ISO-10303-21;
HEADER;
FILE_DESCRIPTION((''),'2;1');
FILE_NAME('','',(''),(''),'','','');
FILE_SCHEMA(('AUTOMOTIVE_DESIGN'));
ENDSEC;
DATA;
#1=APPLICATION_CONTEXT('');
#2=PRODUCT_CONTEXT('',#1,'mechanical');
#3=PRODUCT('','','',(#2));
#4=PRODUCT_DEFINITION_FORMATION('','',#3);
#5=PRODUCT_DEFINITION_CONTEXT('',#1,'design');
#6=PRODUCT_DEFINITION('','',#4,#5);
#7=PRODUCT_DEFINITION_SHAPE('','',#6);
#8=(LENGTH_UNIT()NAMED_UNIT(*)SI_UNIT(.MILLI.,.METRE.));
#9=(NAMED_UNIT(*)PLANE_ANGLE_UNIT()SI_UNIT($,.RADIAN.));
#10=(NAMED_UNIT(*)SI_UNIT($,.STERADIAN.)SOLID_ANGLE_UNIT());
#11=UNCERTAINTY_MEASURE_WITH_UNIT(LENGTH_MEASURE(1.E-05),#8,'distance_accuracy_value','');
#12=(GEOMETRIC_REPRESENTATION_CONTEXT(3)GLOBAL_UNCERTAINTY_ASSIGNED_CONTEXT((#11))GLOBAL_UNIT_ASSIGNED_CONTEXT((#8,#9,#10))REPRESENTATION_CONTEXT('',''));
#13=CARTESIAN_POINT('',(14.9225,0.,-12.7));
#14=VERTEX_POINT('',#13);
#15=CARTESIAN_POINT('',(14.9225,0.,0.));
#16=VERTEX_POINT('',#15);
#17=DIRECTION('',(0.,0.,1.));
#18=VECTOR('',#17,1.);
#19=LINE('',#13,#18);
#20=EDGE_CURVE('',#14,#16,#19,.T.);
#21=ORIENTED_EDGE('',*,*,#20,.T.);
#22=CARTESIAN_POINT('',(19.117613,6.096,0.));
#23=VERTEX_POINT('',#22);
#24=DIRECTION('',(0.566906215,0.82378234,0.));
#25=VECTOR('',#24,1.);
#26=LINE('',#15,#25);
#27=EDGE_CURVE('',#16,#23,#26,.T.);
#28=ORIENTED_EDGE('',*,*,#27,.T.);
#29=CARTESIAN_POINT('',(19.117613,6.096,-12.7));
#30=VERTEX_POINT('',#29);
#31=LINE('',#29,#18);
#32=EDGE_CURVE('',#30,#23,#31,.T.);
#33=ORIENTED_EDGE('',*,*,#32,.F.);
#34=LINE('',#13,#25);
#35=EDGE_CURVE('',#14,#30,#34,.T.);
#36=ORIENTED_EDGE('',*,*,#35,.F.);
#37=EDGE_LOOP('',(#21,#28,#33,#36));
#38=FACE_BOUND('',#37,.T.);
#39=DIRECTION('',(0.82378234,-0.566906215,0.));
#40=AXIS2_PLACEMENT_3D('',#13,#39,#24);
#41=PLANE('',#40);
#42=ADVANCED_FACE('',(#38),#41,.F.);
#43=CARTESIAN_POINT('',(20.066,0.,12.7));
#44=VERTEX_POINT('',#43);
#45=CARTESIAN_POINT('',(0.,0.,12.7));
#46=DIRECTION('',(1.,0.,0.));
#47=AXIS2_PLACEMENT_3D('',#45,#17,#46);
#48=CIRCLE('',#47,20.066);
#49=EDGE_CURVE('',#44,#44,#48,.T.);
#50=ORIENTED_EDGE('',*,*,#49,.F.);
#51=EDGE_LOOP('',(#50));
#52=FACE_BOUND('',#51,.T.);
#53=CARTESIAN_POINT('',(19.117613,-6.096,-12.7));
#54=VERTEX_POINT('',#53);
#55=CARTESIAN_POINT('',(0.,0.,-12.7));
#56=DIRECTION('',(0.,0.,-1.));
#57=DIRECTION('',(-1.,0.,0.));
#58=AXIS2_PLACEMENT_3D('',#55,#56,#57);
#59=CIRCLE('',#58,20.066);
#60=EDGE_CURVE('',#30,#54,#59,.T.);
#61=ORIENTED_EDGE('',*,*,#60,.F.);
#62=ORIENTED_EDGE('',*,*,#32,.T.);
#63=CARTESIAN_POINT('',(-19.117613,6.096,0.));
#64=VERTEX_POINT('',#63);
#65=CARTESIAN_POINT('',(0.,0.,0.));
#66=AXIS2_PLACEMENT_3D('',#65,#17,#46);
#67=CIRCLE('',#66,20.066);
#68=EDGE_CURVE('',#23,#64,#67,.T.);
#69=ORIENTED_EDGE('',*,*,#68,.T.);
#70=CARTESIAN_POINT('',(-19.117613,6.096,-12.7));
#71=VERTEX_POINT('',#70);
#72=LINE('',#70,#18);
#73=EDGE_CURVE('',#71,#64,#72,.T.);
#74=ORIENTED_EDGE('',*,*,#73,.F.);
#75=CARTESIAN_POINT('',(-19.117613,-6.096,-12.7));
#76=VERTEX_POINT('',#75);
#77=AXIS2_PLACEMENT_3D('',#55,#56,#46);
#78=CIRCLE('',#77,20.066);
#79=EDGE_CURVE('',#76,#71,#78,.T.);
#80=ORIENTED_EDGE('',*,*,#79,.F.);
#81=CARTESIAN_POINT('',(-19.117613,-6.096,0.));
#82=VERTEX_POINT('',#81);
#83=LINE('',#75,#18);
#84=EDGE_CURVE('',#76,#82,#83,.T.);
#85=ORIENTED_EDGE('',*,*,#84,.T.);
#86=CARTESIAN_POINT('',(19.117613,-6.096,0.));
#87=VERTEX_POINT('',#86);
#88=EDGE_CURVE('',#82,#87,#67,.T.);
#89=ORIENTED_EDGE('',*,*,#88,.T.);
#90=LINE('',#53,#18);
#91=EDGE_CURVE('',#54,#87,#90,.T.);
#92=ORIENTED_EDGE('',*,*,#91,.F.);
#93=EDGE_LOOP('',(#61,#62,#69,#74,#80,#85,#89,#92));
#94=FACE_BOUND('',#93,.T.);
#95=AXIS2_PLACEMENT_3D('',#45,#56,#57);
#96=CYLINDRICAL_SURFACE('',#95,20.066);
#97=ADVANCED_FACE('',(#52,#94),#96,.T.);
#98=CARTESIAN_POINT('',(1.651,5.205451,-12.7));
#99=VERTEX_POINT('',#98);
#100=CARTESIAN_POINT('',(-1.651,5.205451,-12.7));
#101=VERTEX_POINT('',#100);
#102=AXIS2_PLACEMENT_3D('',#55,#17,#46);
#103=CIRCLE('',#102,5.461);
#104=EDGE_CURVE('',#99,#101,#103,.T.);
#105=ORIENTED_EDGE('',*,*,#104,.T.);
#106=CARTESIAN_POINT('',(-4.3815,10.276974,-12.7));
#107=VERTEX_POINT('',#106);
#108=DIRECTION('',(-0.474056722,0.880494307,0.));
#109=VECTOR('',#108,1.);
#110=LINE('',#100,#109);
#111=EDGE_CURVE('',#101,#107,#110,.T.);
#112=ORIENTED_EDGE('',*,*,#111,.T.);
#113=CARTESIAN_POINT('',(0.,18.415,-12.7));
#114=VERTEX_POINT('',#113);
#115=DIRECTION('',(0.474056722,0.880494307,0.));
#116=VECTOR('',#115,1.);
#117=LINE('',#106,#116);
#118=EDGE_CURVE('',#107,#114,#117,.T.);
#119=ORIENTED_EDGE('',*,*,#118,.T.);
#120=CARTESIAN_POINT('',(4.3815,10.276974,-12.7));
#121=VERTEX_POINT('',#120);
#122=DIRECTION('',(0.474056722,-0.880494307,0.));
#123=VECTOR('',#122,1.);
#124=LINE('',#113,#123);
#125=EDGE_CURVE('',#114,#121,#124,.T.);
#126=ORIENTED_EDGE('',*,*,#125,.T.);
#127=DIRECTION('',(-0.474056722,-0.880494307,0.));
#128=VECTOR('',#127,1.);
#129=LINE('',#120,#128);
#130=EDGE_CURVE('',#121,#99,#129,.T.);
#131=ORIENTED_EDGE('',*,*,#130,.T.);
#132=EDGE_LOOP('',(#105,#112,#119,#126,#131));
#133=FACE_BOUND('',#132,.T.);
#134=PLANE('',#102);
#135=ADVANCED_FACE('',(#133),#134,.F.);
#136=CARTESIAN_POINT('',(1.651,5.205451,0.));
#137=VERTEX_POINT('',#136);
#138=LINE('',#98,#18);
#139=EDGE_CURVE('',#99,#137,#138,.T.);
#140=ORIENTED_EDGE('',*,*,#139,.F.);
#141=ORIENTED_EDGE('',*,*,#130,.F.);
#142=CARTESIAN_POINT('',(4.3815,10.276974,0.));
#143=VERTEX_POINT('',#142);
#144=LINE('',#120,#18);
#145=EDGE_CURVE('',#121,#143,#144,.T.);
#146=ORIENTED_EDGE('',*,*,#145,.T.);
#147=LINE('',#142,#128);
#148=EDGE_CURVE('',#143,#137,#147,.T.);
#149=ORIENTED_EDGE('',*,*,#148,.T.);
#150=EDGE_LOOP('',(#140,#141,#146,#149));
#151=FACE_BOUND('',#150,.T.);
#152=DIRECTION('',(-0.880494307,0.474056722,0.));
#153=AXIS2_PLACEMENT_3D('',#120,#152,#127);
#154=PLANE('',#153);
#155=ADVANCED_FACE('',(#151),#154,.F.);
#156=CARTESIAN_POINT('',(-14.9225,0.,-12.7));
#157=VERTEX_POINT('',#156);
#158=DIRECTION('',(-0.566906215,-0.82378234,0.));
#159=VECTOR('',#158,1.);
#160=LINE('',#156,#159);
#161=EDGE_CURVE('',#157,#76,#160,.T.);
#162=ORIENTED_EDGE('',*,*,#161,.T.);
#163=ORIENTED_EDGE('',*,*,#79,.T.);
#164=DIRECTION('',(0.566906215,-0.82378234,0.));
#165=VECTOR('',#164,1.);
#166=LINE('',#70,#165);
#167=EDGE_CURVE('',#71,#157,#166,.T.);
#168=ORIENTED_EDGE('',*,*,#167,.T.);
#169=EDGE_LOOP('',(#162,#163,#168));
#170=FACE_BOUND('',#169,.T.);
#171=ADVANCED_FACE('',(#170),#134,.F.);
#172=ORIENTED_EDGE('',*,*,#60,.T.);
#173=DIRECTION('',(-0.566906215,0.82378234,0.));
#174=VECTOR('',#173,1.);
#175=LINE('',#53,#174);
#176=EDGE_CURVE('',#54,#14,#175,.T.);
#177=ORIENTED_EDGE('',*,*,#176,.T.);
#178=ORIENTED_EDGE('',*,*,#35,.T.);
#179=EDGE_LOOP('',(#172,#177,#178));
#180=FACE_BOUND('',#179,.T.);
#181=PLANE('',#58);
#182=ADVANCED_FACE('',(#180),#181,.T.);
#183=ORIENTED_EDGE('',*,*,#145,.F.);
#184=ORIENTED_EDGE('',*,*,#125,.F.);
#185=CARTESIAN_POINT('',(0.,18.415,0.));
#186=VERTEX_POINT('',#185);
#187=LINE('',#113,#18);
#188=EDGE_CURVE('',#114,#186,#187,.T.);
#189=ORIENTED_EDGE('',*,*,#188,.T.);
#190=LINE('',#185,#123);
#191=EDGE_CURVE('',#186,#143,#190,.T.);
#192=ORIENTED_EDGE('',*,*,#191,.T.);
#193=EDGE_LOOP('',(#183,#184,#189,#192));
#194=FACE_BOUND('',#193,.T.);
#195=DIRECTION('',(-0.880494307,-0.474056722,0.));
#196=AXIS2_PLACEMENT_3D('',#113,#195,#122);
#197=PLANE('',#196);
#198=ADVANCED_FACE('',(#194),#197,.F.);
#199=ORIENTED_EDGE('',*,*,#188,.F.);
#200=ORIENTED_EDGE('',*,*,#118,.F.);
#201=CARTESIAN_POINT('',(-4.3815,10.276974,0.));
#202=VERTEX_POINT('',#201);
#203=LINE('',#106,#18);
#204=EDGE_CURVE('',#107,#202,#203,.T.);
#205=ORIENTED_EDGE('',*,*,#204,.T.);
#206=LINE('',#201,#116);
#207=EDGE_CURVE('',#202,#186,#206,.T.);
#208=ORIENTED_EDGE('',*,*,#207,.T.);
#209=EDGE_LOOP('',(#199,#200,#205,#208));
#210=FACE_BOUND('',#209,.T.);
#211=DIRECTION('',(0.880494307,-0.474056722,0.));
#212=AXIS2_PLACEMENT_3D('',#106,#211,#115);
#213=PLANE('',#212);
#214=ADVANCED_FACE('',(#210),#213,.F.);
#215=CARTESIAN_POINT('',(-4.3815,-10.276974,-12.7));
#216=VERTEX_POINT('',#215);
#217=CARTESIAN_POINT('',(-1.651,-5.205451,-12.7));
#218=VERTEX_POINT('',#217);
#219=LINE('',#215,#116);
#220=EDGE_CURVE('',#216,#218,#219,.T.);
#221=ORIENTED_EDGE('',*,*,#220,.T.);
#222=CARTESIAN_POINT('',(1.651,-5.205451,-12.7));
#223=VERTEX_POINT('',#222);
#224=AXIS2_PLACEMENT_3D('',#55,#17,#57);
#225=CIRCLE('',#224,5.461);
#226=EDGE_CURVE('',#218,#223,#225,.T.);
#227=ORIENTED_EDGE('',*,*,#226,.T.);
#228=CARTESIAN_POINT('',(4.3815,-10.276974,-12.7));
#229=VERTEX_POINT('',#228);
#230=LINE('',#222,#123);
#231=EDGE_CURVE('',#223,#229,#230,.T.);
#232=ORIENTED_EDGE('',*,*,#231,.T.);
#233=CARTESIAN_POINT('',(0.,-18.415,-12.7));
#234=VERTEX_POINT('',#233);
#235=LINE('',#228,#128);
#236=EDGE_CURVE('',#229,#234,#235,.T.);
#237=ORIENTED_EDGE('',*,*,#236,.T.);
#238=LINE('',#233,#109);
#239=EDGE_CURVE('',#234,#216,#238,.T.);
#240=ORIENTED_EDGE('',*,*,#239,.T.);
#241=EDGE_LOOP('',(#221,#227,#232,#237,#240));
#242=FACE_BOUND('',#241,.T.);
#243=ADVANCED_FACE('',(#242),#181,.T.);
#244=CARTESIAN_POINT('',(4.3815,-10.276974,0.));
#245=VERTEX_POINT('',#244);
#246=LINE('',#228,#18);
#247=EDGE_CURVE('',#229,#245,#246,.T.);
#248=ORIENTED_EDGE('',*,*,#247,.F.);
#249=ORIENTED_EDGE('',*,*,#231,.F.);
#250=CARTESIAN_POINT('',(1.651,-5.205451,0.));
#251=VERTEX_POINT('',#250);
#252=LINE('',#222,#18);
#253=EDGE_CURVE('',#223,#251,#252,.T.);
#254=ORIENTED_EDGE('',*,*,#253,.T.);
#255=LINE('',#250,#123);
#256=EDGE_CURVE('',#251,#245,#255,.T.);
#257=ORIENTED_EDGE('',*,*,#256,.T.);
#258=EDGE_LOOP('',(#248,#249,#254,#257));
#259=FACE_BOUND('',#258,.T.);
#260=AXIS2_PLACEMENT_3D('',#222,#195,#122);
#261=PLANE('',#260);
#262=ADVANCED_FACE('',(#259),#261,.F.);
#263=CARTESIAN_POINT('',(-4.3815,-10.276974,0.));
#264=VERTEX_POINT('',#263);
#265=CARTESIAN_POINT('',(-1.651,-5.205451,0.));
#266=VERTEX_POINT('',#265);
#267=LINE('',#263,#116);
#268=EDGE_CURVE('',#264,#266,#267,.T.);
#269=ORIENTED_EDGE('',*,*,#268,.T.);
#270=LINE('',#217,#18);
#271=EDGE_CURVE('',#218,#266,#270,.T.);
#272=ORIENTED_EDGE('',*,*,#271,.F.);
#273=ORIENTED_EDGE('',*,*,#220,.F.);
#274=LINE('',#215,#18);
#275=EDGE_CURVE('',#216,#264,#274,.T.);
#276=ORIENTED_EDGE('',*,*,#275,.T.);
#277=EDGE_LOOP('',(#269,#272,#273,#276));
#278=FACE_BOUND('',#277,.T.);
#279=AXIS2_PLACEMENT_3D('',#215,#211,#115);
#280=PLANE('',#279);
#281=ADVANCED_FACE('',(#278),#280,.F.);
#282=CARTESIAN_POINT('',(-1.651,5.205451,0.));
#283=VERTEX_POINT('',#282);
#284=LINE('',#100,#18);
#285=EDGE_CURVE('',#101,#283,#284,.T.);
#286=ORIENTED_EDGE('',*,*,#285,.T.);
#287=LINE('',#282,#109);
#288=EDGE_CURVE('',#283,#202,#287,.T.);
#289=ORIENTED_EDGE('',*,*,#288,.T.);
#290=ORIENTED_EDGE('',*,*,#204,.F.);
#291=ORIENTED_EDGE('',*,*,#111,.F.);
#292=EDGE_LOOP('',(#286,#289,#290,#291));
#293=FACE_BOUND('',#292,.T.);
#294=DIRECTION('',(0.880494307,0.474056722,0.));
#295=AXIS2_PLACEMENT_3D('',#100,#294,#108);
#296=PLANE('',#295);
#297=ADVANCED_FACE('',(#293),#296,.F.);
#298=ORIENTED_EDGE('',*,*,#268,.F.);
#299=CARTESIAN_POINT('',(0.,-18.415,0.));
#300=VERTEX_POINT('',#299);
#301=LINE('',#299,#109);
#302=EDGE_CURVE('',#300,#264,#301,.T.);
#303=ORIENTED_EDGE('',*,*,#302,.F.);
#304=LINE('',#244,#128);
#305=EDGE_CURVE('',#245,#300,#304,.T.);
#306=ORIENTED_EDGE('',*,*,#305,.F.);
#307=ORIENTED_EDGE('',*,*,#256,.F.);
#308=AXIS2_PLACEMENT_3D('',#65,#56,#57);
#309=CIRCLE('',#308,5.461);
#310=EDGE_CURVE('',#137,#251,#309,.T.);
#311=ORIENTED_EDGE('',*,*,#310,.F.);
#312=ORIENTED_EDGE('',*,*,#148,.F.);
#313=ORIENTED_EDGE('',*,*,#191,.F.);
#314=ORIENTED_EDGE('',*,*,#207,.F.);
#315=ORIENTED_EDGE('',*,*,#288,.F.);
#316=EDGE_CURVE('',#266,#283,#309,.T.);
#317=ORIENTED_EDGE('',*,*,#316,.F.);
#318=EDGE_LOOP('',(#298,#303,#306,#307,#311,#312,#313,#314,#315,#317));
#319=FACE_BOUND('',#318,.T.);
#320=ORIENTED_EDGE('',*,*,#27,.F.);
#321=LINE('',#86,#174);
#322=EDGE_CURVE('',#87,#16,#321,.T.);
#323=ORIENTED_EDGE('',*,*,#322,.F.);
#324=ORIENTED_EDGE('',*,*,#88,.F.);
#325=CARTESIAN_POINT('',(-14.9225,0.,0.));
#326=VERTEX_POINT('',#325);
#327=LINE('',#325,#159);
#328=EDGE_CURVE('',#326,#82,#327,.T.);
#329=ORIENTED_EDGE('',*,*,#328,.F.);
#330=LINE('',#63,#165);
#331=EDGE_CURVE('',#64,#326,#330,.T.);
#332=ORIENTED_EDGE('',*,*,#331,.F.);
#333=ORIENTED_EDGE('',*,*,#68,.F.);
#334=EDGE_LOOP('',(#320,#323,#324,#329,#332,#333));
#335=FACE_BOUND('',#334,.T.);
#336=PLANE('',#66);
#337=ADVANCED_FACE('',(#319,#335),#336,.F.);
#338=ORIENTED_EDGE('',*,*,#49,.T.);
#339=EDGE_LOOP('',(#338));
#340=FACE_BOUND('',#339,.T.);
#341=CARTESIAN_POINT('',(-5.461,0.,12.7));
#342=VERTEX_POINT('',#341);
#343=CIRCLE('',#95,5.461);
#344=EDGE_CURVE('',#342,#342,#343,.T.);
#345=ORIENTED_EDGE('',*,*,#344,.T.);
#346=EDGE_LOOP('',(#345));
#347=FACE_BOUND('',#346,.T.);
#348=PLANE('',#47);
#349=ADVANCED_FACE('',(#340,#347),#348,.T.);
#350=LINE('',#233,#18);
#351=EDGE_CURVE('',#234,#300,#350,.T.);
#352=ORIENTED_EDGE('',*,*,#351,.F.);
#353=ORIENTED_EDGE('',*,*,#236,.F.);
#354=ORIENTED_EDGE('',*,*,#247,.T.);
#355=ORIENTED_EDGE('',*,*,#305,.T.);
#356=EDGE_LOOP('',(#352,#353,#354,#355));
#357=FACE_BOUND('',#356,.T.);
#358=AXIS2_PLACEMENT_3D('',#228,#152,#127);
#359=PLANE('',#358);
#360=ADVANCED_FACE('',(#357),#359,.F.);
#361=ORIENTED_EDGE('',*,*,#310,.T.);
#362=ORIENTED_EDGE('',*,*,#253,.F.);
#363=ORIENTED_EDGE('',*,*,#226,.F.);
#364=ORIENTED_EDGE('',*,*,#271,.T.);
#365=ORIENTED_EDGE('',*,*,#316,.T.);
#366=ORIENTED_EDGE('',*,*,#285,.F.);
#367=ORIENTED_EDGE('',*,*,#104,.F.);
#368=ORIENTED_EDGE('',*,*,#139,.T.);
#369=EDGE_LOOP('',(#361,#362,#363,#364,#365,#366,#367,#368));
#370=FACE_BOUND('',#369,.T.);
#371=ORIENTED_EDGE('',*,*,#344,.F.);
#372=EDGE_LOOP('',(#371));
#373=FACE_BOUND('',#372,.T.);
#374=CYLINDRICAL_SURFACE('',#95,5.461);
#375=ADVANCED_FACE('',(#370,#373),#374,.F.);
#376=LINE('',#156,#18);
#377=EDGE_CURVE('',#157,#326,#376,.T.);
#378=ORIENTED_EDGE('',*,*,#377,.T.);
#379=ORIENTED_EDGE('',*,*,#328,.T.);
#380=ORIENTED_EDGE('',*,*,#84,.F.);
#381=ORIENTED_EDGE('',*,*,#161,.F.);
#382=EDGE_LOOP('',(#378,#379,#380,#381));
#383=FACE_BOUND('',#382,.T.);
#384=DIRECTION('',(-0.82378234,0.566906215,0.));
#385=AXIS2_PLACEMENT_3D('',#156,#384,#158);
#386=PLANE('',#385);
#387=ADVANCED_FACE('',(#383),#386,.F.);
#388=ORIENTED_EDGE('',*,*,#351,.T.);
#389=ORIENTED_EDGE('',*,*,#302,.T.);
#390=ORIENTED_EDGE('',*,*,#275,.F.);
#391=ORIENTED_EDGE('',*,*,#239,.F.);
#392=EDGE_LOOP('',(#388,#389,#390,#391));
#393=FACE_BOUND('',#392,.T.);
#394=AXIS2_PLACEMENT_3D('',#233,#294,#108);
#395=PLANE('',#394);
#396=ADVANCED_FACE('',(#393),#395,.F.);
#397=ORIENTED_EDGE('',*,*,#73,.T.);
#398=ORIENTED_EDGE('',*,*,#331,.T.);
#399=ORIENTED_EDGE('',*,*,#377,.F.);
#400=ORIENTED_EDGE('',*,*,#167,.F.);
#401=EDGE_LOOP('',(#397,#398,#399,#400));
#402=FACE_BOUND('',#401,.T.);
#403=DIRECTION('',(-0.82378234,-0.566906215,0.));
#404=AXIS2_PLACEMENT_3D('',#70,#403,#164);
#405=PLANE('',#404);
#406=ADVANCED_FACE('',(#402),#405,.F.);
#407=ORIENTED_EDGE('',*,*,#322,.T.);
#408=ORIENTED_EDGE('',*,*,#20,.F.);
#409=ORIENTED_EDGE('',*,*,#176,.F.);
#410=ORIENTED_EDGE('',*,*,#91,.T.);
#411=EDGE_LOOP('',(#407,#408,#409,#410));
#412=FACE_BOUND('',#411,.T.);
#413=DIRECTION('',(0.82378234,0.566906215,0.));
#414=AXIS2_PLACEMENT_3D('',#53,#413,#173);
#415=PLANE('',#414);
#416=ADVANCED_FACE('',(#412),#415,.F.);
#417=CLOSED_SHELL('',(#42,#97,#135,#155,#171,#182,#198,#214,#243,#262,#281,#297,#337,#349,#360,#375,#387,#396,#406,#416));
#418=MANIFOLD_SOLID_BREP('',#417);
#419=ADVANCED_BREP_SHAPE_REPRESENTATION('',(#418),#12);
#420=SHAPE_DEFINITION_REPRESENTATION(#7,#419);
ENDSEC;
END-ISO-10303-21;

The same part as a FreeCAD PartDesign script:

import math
import FreeCAD as App
import Part
import Sketcher

V = App.Vector
Q = App.Units.Quantity

doc = App.newDocument("Part")
body = doc.addObject("PartDesign::Body", "Body")

sketch1 = body.newObject("Sketcher::SketchObject", "Sketch")
sketch1.AttachmentSupport = (doc.getObject("XY_Plane"), [""])
sketch1.MapMode = "FlatFace"
sketch1.addGeometry(Part.Circle(V(0, 0, 0), V(0, 0, 1), 20.066), False)
sketch1.addConstraint(Sketcher.Constraint("Coincident", 0, 3, -1, 1))
sketch1.addConstraint(Sketcher.Constraint("Diameter", 0, Q("1.58 in")))
pad1 = body.newObject("PartDesign::Pad", "Pad")
pad1.Profile = sketch1
pad1.Length = Q("0.5 in")

sketch2 = body.newObject("Sketcher::SketchObject", "Sketch001")
sketch2.AttachmentSupport = (doc.getObject("XY_Plane"), [""])
sketch2.MapMode = "FlatFace"
sketch2.addGeometry(Part.Circle(V(0, 0, 0), V(0, 0, 1), 5.461), False)
sketch2.addConstraint(Sketcher.Constraint("Coincident", 0, 3, -1, 1))
sketch2.addConstraint(Sketcher.Constraint("Diameter", 0, Q("0.43 in")))
pocket1 = body.newObject("PartDesign::Pocket", "Pocket")
pocket1.Profile = sketch2
pocket1.Type = "ThroughAll"
pocket1.Reversed = True

sketch3 = body.newObject("Sketcher::SketchObject", "Sketch002")
sketch3.AttachmentSupport = (doc.getObject("XY_Plane"), [""])
sketch3.MapMode = "FlatFace"
sketch3.addGeometry(Part.LineSegment(V(19.117613, -6.096, 0), V(14.9225, 0, 0)), False)
sketch3.addGeometry(Part.LineSegment(V(14.9225, 0, 0), V(19.117613, 6.096, 0)), False)
sketch3.addGeometry(Part.ArcOfCircle(Part.Circle(V(0, 0, 0), V(0, 0, 1), 20.066), math.radians(-17.685831), math.radians(17.685831)), False)
sketch3.addGeometry(Part.LineSegment(V(-19.117613, 6.096, 0), V(-14.9225, 0, 0)), False)
sketch3.addGeometry(Part.LineSegment(V(-14.9225, 0, 0), V(-19.117613, -6.096, 0)), False)
sketch3.addGeometry(Part.ArcOfCircle(Part.Circle(V(0, 0, 0), V(0, 0, 1), 20.066), math.radians(162.314169), math.radians(197.685831)), False)
sketch3.addGeometry(Part.LineSegment(V(0, 18.415, 0), V(4.3815, 10.276974, 0)), False)
sketch3.addGeometry(Part.LineSegment(V(4.3815, 10.276974, 0), V(1.651, 5.205451, 0)), False)
sketch3.addGeometry(Part.ArcOfCircle(Part.Circle(V(0, 0, 0), V(0, 0, 1), 5.461), math.radians(72.402663), math.radians(107.597337)), False)
sketch3.addGeometry(Part.LineSegment(V(-1.651, 5.205451, 0), V(-4.3815, 10.276974, 0)), False)
sketch3.addGeometry(Part.LineSegment(V(-4.3815, 10.276974, 0), V(0, 18.415, 0)), False)
sketch3.addGeometry(Part.LineSegment(V(1.651, -5.205451, 0), V(4.3815, -10.276974, 0)), False)
sketch3.addGeometry(Part.LineSegment(V(4.3815, -10.276974, 0), V(0, -18.415, 0)), False)
sketch3.addGeometry(Part.LineSegment(V(0, -18.415, 0), V(-4.3815, -10.276974, 0)), False)
sketch3.addGeometry(Part.LineSegment(V(-4.3815, -10.276974, 0), V(-1.651, -5.205451, 0)), False)
sketch3.addGeometry(Part.ArcOfCircle(Part.Circle(V(0, 0, 0), V(0, 0, 1), 5.461), math.radians(-107.597337), math.radians(-72.402663)), False)
sketch3.addConstraint(Sketcher.Constraint("Coincident", 0, 2, 1, 1))
sketch3.addConstraint(Sketcher.Constraint("Coincident", 1, 2, 2, 2))
sketch3.addConstraint(Sketcher.Constraint("Coincident", 2, 1, 0, 1))
sketch3.addConstraint(Sketcher.Constraint("Coincident", 3, 2, 4, 1))
sketch3.addConstraint(Sketcher.Constraint("Coincident", 4, 2, 5, 2))
sketch3.addConstraint(Sketcher.Constraint("Coincident", 5, 1, 3, 1))
sketch3.addConstraint(Sketcher.Constraint("Coincident", 6, 2, 7, 1))
sketch3.addConstraint(Sketcher.Constraint("Coincident", 7, 2, 8, 1))
sketch3.addConstraint(Sketcher.Constraint("Coincident", 8, 2, 9, 1))
sketch3.addConstraint(Sketcher.Constraint("Coincident", 9, 2, 10, 1))
sketch3.addConstraint(Sketcher.Constraint("Coincident", 10, 2, 6, 1))
sketch3.addConstraint(Sketcher.Constraint("Coincident", 11, 2, 12, 1))
sketch3.addConstraint(Sketcher.Constraint("Coincident", 12, 2, 13, 1))
sketch3.addConstraint(Sketcher.Constraint("Coincident", 13, 2, 14, 1))
sketch3.addConstraint(Sketcher.Constraint("Coincident", 14, 2, 15, 1))
sketch3.addConstraint(Sketcher.Constraint("Coincident", 15, 2, 11, 1))
sketch3.addConstraint(Sketcher.Constraint("Coincident", 2, 3, -1, 1))
sketch3.addConstraint(Sketcher.Constraint("Coincident", 5, 3, -1, 1))
sketch3.addConstraint(Sketcher.Constraint("Coincident", 8, 3, -1, 1))
sketch3.addConstraint(Sketcher.Constraint("Coincident", 15, 3, -1, 1))
sketch3.addConstraint(Sketcher.Constraint("Equal", 2, 5))
sketch3.addConstraint(Sketcher.Constraint("Equal", 8, 15))
sketch3.addConstraint(Sketcher.Constraint("Symmetric", 0, 2, 3, 2, -1, 1))
sketch3.addConstraint(Sketcher.Constraint("Symmetric", 9, 2, 11, 2, -1, 1))
sketch3.addConstraint(Sketcher.Constraint("Symmetric", 10, 2, 12, 2, -1, 1))
sketch3.addConstraint(Sketcher.Constraint("Symmetric", 6, 2, 13, 2, -1, 1))
sketch3.addConstraint(Sketcher.Constraint("Symmetric", 6, 2, 9, 2, -2))
sketch3.addConstraint(Sketcher.Constraint("PointOnObject", 0, 2, -1))
sketch3.addConstraint(Sketcher.Constraint("PointOnObject", 10, 2, -2))
sketch3.addConstraint(Sketcher.Constraint("Parallel", 0, 3))
sketch3.addConstraint(Sketcher.Constraint("Parallel", 1, 4))
sketch3.addConstraint(Sketcher.Constraint("Parallel", 6, 9))
sketch3.addConstraint(Sketcher.Constraint("Parallel", 7, 10))
sketch3.addConstraint(Sketcher.Constraint("Parallel", 9, 11))
sketch3.addConstraint(Sketcher.Constraint("Parallel", 12, 14))
sketch3.addConstraint(Sketcher.Constraint("Horizontal", 2, 1, 4, 2))
sketch3.addConstraint(Sketcher.Constraint("Radius", 2, Q("0.79 in")))
sketch3.addConstraint(Sketcher.Constraint("Radius", 8, Q("0.215 in")))
sketch3.addConstraint(Sketcher.Constraint("DistanceY", -1, 1, 1, 2, Q("0.24 in")))
sketch3.addConstraint(Sketcher.Constraint("DistanceX", 8, 2, 7, 2, Q("0.13 in")))
sketch3.addConstraint(Sketcher.Constraint("DistanceY", -1, 1, 10, 2, Q("0.725 in")))
sketch3.addConstraint(Sketcher.Constraint("DistanceX", 3, 2, 0, 2, Q("1.175 in")))
sketch3.addConstraint(Sketcher.Constraint("DistanceX", 6, 2, 0, 2, Q("0.415 in")))
pad2 = body.newObject("PartDesign::Pad", "Pad001")
pad2.Profile = sketch3
pad2.Length = Q("0.5 in")
pad2.Reversed = True

doc.recompute()
